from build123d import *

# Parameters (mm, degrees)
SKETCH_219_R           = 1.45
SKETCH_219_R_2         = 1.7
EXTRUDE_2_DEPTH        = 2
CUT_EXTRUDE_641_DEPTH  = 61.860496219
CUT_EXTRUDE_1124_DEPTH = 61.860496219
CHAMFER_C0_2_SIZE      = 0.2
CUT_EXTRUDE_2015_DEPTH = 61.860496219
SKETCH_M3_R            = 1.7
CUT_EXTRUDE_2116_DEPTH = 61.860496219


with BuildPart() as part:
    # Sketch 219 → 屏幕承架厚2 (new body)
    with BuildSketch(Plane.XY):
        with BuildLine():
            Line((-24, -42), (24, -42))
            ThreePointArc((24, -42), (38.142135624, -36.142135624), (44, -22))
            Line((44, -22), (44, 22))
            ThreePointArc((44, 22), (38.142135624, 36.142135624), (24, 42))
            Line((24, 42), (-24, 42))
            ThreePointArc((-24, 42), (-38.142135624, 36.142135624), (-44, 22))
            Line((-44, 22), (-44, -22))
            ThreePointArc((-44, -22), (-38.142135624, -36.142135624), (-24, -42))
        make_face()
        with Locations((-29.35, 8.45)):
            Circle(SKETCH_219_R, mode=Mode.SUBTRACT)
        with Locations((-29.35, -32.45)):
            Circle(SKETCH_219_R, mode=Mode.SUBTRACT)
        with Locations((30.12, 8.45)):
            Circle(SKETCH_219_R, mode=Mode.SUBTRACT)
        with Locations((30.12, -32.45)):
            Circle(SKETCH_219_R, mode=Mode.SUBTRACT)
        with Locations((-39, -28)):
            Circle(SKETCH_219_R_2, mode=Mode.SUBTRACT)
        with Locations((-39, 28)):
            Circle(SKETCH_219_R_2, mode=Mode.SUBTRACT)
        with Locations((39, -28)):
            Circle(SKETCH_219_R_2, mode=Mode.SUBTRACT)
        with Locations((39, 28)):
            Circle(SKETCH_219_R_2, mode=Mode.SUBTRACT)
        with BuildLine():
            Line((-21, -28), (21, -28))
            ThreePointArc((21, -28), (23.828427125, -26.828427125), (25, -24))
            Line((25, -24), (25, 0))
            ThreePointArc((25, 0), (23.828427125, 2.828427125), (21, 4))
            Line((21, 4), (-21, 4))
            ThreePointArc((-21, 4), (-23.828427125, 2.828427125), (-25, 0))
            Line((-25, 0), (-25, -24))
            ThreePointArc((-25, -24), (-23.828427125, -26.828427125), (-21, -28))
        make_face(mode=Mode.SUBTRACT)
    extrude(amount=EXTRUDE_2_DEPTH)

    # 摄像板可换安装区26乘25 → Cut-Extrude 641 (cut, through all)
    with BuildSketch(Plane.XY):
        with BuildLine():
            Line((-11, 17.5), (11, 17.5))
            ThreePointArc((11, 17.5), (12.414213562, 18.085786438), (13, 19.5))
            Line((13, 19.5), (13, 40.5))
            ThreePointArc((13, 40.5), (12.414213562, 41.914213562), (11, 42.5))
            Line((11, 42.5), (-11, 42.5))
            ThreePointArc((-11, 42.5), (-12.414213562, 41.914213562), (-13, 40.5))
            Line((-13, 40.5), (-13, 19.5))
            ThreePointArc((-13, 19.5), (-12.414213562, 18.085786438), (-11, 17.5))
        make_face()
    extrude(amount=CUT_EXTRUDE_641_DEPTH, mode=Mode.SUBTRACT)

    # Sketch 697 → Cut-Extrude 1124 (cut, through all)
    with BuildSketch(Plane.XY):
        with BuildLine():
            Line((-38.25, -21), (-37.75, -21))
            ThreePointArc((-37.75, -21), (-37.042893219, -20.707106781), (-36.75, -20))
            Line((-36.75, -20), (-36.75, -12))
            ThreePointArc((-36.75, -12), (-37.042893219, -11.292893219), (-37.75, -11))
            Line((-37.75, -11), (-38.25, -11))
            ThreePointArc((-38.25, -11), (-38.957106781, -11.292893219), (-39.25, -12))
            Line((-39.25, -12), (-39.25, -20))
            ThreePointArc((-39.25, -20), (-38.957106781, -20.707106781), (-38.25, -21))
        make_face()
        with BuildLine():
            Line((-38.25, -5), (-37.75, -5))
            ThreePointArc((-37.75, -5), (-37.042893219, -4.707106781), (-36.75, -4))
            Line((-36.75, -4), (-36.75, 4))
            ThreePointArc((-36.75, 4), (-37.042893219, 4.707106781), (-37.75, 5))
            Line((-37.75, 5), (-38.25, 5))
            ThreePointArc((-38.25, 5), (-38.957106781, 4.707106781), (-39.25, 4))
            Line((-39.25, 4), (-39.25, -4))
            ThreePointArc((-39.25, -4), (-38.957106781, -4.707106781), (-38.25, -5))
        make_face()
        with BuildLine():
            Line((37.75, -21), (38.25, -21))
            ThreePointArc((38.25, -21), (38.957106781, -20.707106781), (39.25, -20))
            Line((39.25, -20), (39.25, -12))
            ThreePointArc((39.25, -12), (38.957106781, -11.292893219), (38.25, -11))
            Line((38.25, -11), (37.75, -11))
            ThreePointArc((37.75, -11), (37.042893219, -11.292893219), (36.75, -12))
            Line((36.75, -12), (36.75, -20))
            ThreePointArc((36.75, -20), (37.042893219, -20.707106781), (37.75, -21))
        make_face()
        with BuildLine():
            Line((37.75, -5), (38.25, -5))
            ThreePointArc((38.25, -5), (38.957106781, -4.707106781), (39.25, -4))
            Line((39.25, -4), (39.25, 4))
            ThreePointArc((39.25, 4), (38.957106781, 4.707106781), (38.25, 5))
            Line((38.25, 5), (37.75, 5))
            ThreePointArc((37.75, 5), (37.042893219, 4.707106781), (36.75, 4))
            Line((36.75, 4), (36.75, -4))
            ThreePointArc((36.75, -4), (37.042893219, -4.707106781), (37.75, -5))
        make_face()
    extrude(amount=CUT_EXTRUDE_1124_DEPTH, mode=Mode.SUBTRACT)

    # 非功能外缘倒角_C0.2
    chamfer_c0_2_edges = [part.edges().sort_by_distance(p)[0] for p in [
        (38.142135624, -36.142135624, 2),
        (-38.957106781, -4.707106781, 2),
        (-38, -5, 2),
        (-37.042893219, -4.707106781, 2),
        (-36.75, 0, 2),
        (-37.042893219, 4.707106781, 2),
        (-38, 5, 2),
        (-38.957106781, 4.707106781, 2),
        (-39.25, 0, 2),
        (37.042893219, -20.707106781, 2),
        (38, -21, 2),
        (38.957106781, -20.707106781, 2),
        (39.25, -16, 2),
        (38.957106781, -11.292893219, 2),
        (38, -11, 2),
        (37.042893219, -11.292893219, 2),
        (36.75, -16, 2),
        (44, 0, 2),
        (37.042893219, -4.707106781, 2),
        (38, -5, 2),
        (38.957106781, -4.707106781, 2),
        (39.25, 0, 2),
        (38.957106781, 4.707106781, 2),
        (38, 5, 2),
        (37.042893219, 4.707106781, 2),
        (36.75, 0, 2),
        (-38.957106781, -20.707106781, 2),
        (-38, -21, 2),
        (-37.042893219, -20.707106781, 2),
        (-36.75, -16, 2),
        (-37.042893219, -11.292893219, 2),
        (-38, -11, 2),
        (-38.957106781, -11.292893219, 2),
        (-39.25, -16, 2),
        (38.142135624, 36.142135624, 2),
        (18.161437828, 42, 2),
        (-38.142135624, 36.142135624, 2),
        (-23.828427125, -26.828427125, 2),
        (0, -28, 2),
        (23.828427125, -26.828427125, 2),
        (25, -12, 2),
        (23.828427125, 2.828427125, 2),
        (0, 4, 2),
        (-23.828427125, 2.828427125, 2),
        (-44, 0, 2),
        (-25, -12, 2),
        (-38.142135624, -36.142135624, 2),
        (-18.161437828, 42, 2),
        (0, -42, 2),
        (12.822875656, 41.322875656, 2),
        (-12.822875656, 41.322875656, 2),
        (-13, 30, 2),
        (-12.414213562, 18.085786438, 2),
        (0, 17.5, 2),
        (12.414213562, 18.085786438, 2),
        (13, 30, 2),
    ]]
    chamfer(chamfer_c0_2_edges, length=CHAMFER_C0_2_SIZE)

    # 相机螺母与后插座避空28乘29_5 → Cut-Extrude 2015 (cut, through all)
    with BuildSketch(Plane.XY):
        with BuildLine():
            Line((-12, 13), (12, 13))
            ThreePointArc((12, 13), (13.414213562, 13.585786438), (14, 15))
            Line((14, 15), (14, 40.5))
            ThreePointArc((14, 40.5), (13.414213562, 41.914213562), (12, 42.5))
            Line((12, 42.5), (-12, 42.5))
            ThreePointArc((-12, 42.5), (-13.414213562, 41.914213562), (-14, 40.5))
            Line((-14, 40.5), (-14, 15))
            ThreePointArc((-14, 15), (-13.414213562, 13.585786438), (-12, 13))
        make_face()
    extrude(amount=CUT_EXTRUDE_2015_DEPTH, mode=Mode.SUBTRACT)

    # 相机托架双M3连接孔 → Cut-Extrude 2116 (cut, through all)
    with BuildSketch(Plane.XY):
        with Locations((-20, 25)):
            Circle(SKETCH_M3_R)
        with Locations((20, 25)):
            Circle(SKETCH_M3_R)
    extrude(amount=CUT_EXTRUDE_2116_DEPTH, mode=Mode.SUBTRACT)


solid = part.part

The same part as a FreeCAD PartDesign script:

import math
import FreeCAD as App
import Part
import Sketcher

V = App.Vector


def edges_at(feature, points):
    """Names of the edges that pass closest to the given points."""
    edges = feature.Shape.Edges
    near = lambda p: min(range(len(edges)), key=lambda i: edges[i].distToShape(Part.Vertex(*p))[0])
    return sorted({f"Edge{near(p) + 1}" for p in points})

doc = App.newDocument("Part")
body = doc.addObject("PartDesign::Body", "Body")

sketch1 = doc.addObject("Sketcher::SketchObject", "Sketch")
body.addObject(sketch1)
sketch1.AttachmentSupport = (doc.XY_Plane, [""])
sketch1.MapMode = "FlatFace"
sketch1.addGeometry([
    Part.LineSegment(V(-24, -42, 0), V(24, -42, 0)),
    Part.ArcOfCircle(Part.Circle(V(24, -22, 0), V(0, 0, 1), 20), math.radians(-90), math.radians(0)),
    Part.LineSegment(V(44, -22, 0), V(44, 22, 0)),
    Part.ArcOfCircle(Part.Circle(V(24, 22, 0), V(0, 0, 1), 20), math.radians(0), math.radians(90)),
    Part.LineSegment(V(24, 42, 0), V(-24, 42, 0)),
    Part.ArcOfCircle(Part.Circle(V(-24, 22, 0), V(0, 0, 1), 20), math.radians(90), math.radians(180)),
    Part.LineSegment(V(-44, 22, 0), V(-44, -22, 0)),
    Part.ArcOfCircle(Part.Circle(V(-24, -22, 0), V(0, 0, 1), 20), math.radians(180), math.radians(270)),
    Part.Circle(V(-39, -28, 0), V(0, 0, 1), 1.7),
    Part.Circle(V(-29.35, -32.45, 0), V(0, 0, 1), 1.45),
    Part.Circle(V(30.12, -32.45, 0), V(0, 0, 1), 1.45),
    Part.Circle(V(39, -28, 0), V(0, 0, 1), 1.7),
    Part.LineSegment(V(21, -28, 0), V(-21, -28, 0)),
    Part.ArcOfCircle(Part.Circle(V(-21, -24, 0), V(0, 0, 1), 4), math.radians(180), math.radians(270)),
    Part.LineSegment(V(-25, -24, 0), V(-25, 0, 0)),
    Part.ArcOfCircle(Part.Circle(V(-21, 0, 0), V(0, 0, 1), 4), math.radians(90), math.radians(180)),
    Part.LineSegment(V(-21, 4, 0), V(21, 4, 0)),
    Part.ArcOfCircle(Part.Circle(V(21, 0, 0), V(0, 0, 1), 4), math.radians(0), math.radians(90)),
    Part.LineSegment(V(25, 0, 0), V(25, -24, 0)),
    Part.ArcOfCircle(Part.Circle(V(21, -24, 0), V(0, 0, 1), 4), math.radians(-90), math.radians(0)),
    Part.Circle(V(-29.35, 8.45, 0), V(0, 0, 1), 1.45),
    Part.Circle(V(-39, 28, 0), V(0, 0, 1), 1.7),
    Part.Circle(V(30.12, 8.45, 0), V(0, 0, 1), 1.45),
    Part.Circle(V(39, 28, 0), V(0, 0, 1), 1.7),
], False)
sketch1.addConstraint([
    Sketcher.Constraint("Tangent", 0, 2, 1, 1),
    Sketcher.Constraint("Tangent", 1, 2, 2, 1),
    Sketcher.Constraint("Tangent", 2, 2, 3, 1),
    Sketcher.Constraint("Tangent", 3, 2, 4, 1),
    Sketcher.Constraint("Tangent", 4, 2, 5, 1),
    Sketcher.Constraint("Tangent", 5, 2, 6, 1),
    Sketcher.Constraint("Tangent", 6, 2, 7, 1),
    Sketcher.Constraint("Tangent", 7, 2, 0, 1),
    Sketcher.Constraint("Tangent", 12, 2, 13, 2),
    Sketcher.Constraint("Tangent", 13, 1, 14, 1),
    Sketcher.Constraint("Tangent", 14, 2, 15, 2),
    Sketcher.Constraint("Tangent", 15, 1, 16, 1),
    Sketcher.Constraint("Tangent", 16, 2, 17, 2),
    Sketcher.Constraint("Tangent", 17, 1, 18, 1),
    Sketcher.Constraint("Tangent", 18, 2, 19, 2),
    Sketcher.Constraint("Tangent", 19, 1, 12, 1),
    Sketcher.Constraint("Horizontal", 0),
    Sketcher.Constraint("Vertical", 2),
    Sketcher.Constraint("Horizontal", 4),
    Sketcher.Constraint("Vertical", 6),
    Sketcher.Constraint("Horizontal", 12),
    Sketcher.Constraint("Vertical", 14),
    Sketcher.Constraint("Horizontal", 16),
    Sketcher.Constraint("Vertical", 18),
    Sketcher.Constraint("Equal", 1, 3),
    Sketcher.Constraint("Equal", 3, 5),
    Sketcher.Constraint("Equal", 5, 7),
    Sketcher.Constraint("Equal", 9, 10),
    Sketcher.Constraint("Equal", 8, 11),
    Sketcher.Constraint("Equal", 13, 15),
    Sketcher.Constraint("Equal", 15, 17),
    Sketcher.Constraint("Equal", 17, 19),
    Sketcher.Constraint("Equal", 10, 20),
    Sketcher.Constraint("Equal", 11, 21),
    Sketcher.Constraint("Equal", 20, 22),
    Sketcher.Constraint("Equal", 21, 23),
    Sketcher.Constraint("Symmetric", 1, 3, 5, 3, -1, 1),
    Sketcher.Constraint("Symmetric", 15, 3, 17, 3, -1, 1),
    Sketcher.Constraint("Symmetric", 11, 3, 21, 3, -1, 1),
    Sketcher.Constraint("Symmetric", 8, 3, 23, 3, -1, 1),
    Sketcher.Constraint("Symmetric", 8, 3, 11, 3, -2),
    Sketcher.Constraint("Horizontal", 9, 3, 10, 3),
    Sketcher.Constraint("Horizontal", 20, 3, 22, 3),
    Sketcher.Constraint("Horizontal", 11, 3, 12, 2),
    Sketcher.Constraint("Vertical", 9, 3, 20, 3),
    Sketcher.Constraint("Vertical", 10, 3, 22, 3),
    Sketcher.Constraint("Radius", 1, 20.0),
    Sketcher.Constraint("Radius", 13, 4.0),
    Sketcher.Constraint("Diameter", 8, 3.4),
    Sketcher.Constraint("Diameter", 9, 2.9),
    Sketcher.Constraint("DistanceX", 0, 1, 0, 2, 48.0),
    Sketcher.Constraint("DistanceX", 12, 2, 12, 1, 42.0),
    Sketcher.Constraint("DistanceY", 2, 1, 2, 2, 44.0),
    Sketcher.Constraint("DistanceY", 14, 1, 14, 2, 24.0),
    Sketcher.Constraint("DistanceX", 8, 3, -1, 1, 39.0),
    Sketcher.Constraint("DistanceX", 9, 3, -1, 1, 29.35),
    Sketcher.Constraint("DistanceY", 9, 3, -1, 1, 32.45),
    Sketcher.Constraint("DistanceX", -1, 1, 10, 3, 30.12),
    Sketcher.Constraint("DistanceY", -1, 1, 20, 3, 8.45),
])
pad1 = doc.addObject("PartDesign::Pad", "Pad")
body.addObject(pad1)
pad1.Profile = sketch1
pad1.Length = 2

sketch2 = doc.addObject("Sketcher::SketchObject", "Sketch001")
body.addObject(sketch2)
sketch2.AttachmentSupport = (doc.XY_Plane, [""])
sketch2.MapMode = "FlatFace"
sketch2.addGeometry([
    Part.LineSegment(V(-11, 17.5, 0), V(11, 17.5, 0)),
    Part.ArcOfCircle(Part.Circle(V(11, 19.5, 0), V(0, 0, 1), 2), math.radians(-90), math.radians(0)),
    Part.LineSegment(V(13, 19.5, 0), V(13, 40.5, 0)),
    Part.ArcOfCircle(Part.Circle(V(11, 40.5, 0), V(0, 0, 1), 2), math.radians(0), math.radians(90)),
    Part.LineSegment(V(11, 42.5, 0), V(-11, 42.5, 0)),
    Part.ArcOfCircle(Part.Circle(V(-11, 40.5, 0), V(0, 0, 1), 2), math.radians(90), math.radians(180)),
    Part.LineSegment(V(-13, 40.5, 0), V(-13, 19.5, 0)),
    Part.ArcOfCircle(Part.Circle(V(-11, 19.5, 0), V(0, 0, 1), 2), math.radians(-180), math.radians(-90)),
], False)
sketch2.addConstraint([
    Sketcher.Constraint("Tangent", 0, 2, 1, 1),
    Sketcher.Constraint("Tangent", 1, 2, 2, 1),
    Sketcher.Constraint("Tangent", 2, 2, 3, 1),
    Sketcher.Constraint("Tangent", 3, 2, 4, 1),
    Sketcher.Constraint("Tangent", 4, 2, 5, 1),
    Sketcher.Constraint("Tangent", 5, 2, 6, 1),
    Sketcher.Constraint("Tangent", 6, 2, 7, 1),
    Sketcher.Constraint("Tangent", 7, 2, 0, 1),
    Sketcher.Constraint("Horizontal", 0),
    Sketcher.Constraint("Vertical", 2),
    Sketcher.Constraint("Horizontal", 4),
    Sketcher.Constraint("Vertical", 6),
    Sketcher.Constraint("Equal", 1, 3),
    Sketcher.Constraint("Equal", 3, 5),
    Sketcher.Constraint("Equal", 5, 7),
    Sketcher.Constraint("Radius", 1, 2.0),
    Sketcher.Constraint("DistanceX", 0, 1, 0, 2, 22.0),
    Sketcher.Constraint("DistanceY", 2, 1, 2, 2, 21.0),
    Sketcher.Constraint("DistanceX", -1, 1, 1, 3, 11.0),
    Sketcher.Constraint("DistanceY", -1, 1, 1, 3, 19.5),
])
pocket1 = doc.addObject("PartDesign::Pocket", "Pocket")
body.addObject(pocket1)
pocket1.Profile = sketch2
pocket1.Type = "ThroughAll"
pocket1.Reversed = True

sketch3 = doc.addObject("Sketcher::SketchObject", "Sketch002")
body.addObject(sketch3)
sketch3.AttachmentSupport = (doc.XY_Plane, [""])
sketch3.MapMode = "FlatFace"
sketch3.addGeometry([
    Part.LineSegment(V(-38.25, -21, 0), V(-37.75, -21, 0)),
    Part.ArcOfCircle(Part.Circle(V(-37.75, -20, 0), V(0, 0, 1), 1), math.radians(-90), math.radians(0)),
    Part.LineSegment(V(-36.75, -20, 0), V(-36.75, -12, 0)),
    Part.ArcOfCircle(Part.Circle(V(-37.75, -12, 0), V(0, 0, 1), 1), math.radians(0), math.radians(90)),
    Part.LineSegment(V(-37.75, -11, 0), V(-38.25, -11, 0)),
    Part.ArcOfCircle(Part.Circle(V(-38.25, -12, 0), V(0, 0, 1), 1), math.radians(90), math.radians(180)),
    Part.LineSegment(V(-39.25, -12, 0), V(-39.25, -20, 0)),
    Part.ArcOfCircle(Part.Circle(V(-38.25, -20, 0), V(0, 0, 1), 1), math.radians(-180), math.radians(-90)),
    Part.LineSegment(V(-38.25, -5, 0), V(-37.75, -5, 0)),
    Part.ArcOfCircle(Part.Circle(V(-37.75, -4, 0), V(0, 0, 1), 1), math.radians(-90), math.radians(0)),
    Part.LineSegment(V(-36.75, -4, 0), V(-36.75, 4, 0)),
    Part.ArcOfCircle(Part.Circle(V(-37.75, 4, 0), V(0, 0, 1), 1), math.radians(0), math.radians(90)),
    Part.LineSegment(V(-37.75, 5, 0), V(-38.25, 5, 0)),
    Part.ArcOfCircle(Part.Circle(V(-38.25, 4, 0), V(0, 0, 1), 1), math.radians(90), math.radians(180)),
    Part.LineSegment(V(-39.25, 4, 0), V(-39.25, -4, 0)),
    Part.ArcOfCircle(Part.Circle(V(-38.25, -4, 0), V(0, 0, 1), 1), math.radians(-180), math.radians(-90)),
    Part.LineSegment(V(37.75, -21, 0), V(38.25, -21, 0)),
    Part.ArcOfCircle(Part.Circle(V(38.25, -20, 0), V(0, 0, 1), 1), math.radians(-90), math.radians(0)),
    Part.LineSegment(V(39.25, -20, 0), V(39.25, -12, 0)),
    Part.ArcOfCircle(Part.Circle(V(38.25, -12, 0), V(0, 0, 1), 1), math.radians(0), math.radians(90)),
    Part.LineSegment(V(38.25, -11, 0), V(37.75, -11, 0)),
    Part.ArcOfCircle(Part.Circle(V(37.75, -12, 0), V(0, 0, 1), 1), math.radians(90), math.radians(180)),
    Part.LineSegment(V(36.75, -12, 0), V(36.75, -20, 0)),
    Part.ArcOfCircle(Part.Circle(V(37.75, -20, 0), V(0, 0, 1), 1), math.radians(-180), math.radians(-90)),
    Part.LineSegment(V(37.75, -5, 0), V(38.25, -5, 0)),
    Part.ArcOfCircle(Part.Circle(V(38.25, -4, 0), V(0, 0, 1), 1), math.radians(-90), math.radians(0)),
    Part.LineSegment(V(39.25, -4, 0), V(39.25, 4, 0)),
    Part.ArcOfCircle(Part.Circle(V(38.25, 4, 0), V(0, 0, 1), 1), math.radians(0), math.radians(90)),
    Part.LineSegment(V(38.25, 5, 0), V(37.75, 5, 0)),
    Part.ArcOfCircle(Part.Circle(V(37.75, 4, 0), V(0, 0, 1), 1), math.radians(90), math.radians(180)),
    Part.LineSegment(V(36.75, 4, 0), V(36.75, -4, 0)),
    Part.ArcOfCircle(Part.Circle(V(37.75, -4, 0), V(0, 0, 1), 1), math.radians(-180), math.radians(-90)),
], False)
sketch3.addConstraint([
    Sketcher.Constraint("Tangent", 0, 2, 1, 1),
    Sketcher.Constraint("Tangent", 1, 2, 2, 1),
    Sketcher.Constraint("Tangent", 2, 2, 3, 1),
    Sketcher.Constraint("Tangent", 3, 2, 4, 1),
    Sketcher.Constraint("Tangent", 4, 2, 5, 1),
    Sketcher.Constraint("Tangent", 5, 2, 6, 1),
    Sketcher.Constraint("Tangent", 6, 2, 7, 1),
    Sketcher.Constraint("Tangent", 7, 2, 0, 1),
    Sketcher.Constraint("Tangent", 8, 2, 9, 1),
    Sketcher.Constraint("Tangent", 9, 2, 10, 1),
    Sketcher.Constraint("Tangent", 10, 2, 11, 1),
    Sketcher.Constraint("Tangent", 11, 2, 12, 1),
    Sketcher.Constraint("Tangent", 12, 2, 13, 1),
    Sketcher.Constraint("Tangent", 13, 2, 14, 1),
    Sketcher.Constraint("Tangent", 14, 2, 15, 1),
    Sketcher.Constraint("Tangent", 15, 2, 8, 1),
    Sketcher.Constraint("Tangent", 16, 2, 17, 1),
    Sketcher.Constraint("Tangent", 17, 2, 18, 1),
    Sketcher.Constraint("Tangent", 18, 2, 19, 1),
    Sketcher.Constraint("Tangent", 19, 2, 20, 1),
    Sketcher.Constraint("Tangent", 20, 2, 21, 1),
    Sketcher.Constraint("Tangent", 21, 2, 22, 1),
    Sketcher.Constraint("Tangent", 22, 2, 23, 1),
    Sketcher.Constraint("Tangent", 23, 2, 16, 1),
    Sketcher.Constraint("Tangent", 24, 2, 25, 1),
    Sketcher.Constraint("Tangent", 25, 2, 26, 1),
    Sketcher.Constraint("Tangent", 26, 2, 27, 1),
    Sketcher.Constraint("Tangent", 27, 2, 28, 1),
    Sketcher.Constraint("Tangent", 28, 2, 29, 1),
    Sketcher.Constraint("Tangent", 29, 2, 30, 1),
    Sketcher.Constraint("Tangent", 30, 2, 31, 1),
    Sketcher.Constraint("Tangent", 31, 2, 24, 1),
    Sketcher.Constraint("Horizontal", 0),
    Sketcher.Constraint("Vertical", 2),
    Sketcher.Constraint("Horizontal", 4),
    Sketcher.Constraint("Vertical", 6),
    Sketcher.Constraint("Horizontal", 8),
    Sketcher.Constraint("Vertical", 10),
    Sketcher.Constraint("Horizontal", 12),
    Sketcher.Constraint("Vertical", 14),
    Sketcher.Constraint("Horizontal", 16),
    Sketcher.Constraint("Vertical", 18),
    Sketcher.Constraint("Horizontal", 20),
    Sketcher.Constraint("Vertical", 22),
    Sketcher.Constraint("Horizontal", 24),
    Sketcher.Constraint("Vertical", 26),
    Sketcher.Constraint("Horizontal", 28),
    Sketcher.Constraint("Vertical", 30),
    Sketcher.Constraint("Equal", 1, 3),
    Sketcher.Constraint("Equal", 3, 5),
    Sketcher.Constraint("Equal", 5, 7),
    Sketcher.Constraint("Equal", 7, 9),
    Sketcher.Constraint("Equal", 9, 11),
    Sketcher.Constraint("Equal", 11, 13),
    Sketcher.Constraint("Equal", 13, 15),
    Sketcher.Constraint("Equal", 15, 17),
    Sketcher.Constraint("Equal", 17, 19),
    Sketcher.Constraint("Equal", 19, 21),
    Sketcher.Constraint("Equal", 21, 23),
    Sketcher.Constraint("Equal", 23, 25),
    Sketcher.Constraint("Equal", 25, 27),
    Sketcher.Constraint("Equal", 27, 29),
    Sketcher.Constraint("Equal", 29, 31),
    Sketcher.Constraint("Symmetric", 13, 3, 25, 3, -1, 1),
    Sketcher.Constraint("Symmetric", 9, 3, 29, 3, -1, 1),
    Sketcher.Constraint("Symmetric", 7, 3, 17, 3, -2),
    Sketcher.Constraint("Symmetric", 3, 3, 21, 3, -2),
    Sketcher.Constraint("Horizontal", 15, 3, 25, 3),
    Sketcher.Constraint("Vertical", 3, 3, 9, 3),
    Sketcher.Constraint("Vertical", 7, 3, 13, 3),
    Sketcher.Constraint("Equal", 6, 10),
    Sketcher.Constraint("Radius", 1, 1.0),
    Sketcher.Constraint("DistanceY", 2, 1, 2, 2, 8.0),
    Sketcher.Constraint("DistanceX", 0, 1, 0, 2, 0.5),
    Sketcher.Constraint("DistanceY", 1, 3, -1, 1, 20.0),
    Sketcher.Constraint("DistanceX", 1, 3, 17, 3, 76.0),
])
pocket2 = doc.addObject("PartDesign::Pocket", "Pocket001")
body.addObject(pocket2)
pocket2.Profile = sketch3
pocket2.Type = "ThroughAll"
pocket2.Reversed = True
doc.recompute()

chamfer = doc.addObject("PartDesign::Chamfer", "Chamfer")
body.addObject(chamfer)
chamfer.Base = (pocket2, edges_at(pocket2, [
    (38.142, -36.142, 2),
    (-38.957, -4.707, 2),
    (-38, -5, 2),
    (-37.043, -4.707, 2),
    (-36.75, 0, 2),
    (-37.043, 4.707, 2),
    (-38, 5, 2),
    (-38.957, 4.707, 2),
    (-39.25, 0, 2),
    (37.043, -20.707, 2),
    (38, -21, 2),
    (38.957, -20.707, 2),
    (39.25, -16, 2),
    (38.957, -11.293, 2),
    (38, -11, 2),
    (37.043, -11.293, 2),
    (36.75, -16, 2),
    (44, 0, 2),
    (37.043, -4.707, 2),
    (38, -5, 2),
    (38.957, -4.707, 2),
    (39.25, 0, 2),
    (38.957, 4.707, 2),
    (38, 5, 2),
    (37.043, 4.707, 2),
    (36.75, 0, 2),
    (-38.957, -20.707, 2),
    (-38, -21, 2),
    (-37.043, -20.707, 2),
    (-36.75, -16, 2),
    (-37.043, -11.293, 2),
    (-38, -11, 2),
    (-38.957, -11.293, 2),
    (-39.25, -16, 2),
    (38.142, 36.142, 2),
    (18.161, 42, 2),
    (-38.142, 36.142, 2),
    (-23.828, -26.828, 2),
    (0, -28, 2),
    (23.828, -26.828, 2),
    (25, -12, 2),
    (23.828, 2.828, 2),
    (0, 4, 2),
    (-23.828, 2.828, 2),
    (-44, 0, 2),
    (-25, -12, 2),
    (-38.142, -36.142, 2),
    (-18.161, 42, 2),
    (0, -42, 2),
    (12.823, 41.323, 2),
    (-12.823, 41.323, 2),
    (-13, 30, 2),
    (-12.414, 18.086, 2),
    (0, 17.5, 2),
    (12.414, 18.086, 2),
    (13, 30, 2),
]))
chamfer.Size = 0.2

sketch4 = doc.addObject("Sketcher::SketchObject", "Sketch003")
body.addObject(sketch4)
sketch4.AttachmentSupport = (doc.XY_Plane, [""])
sketch4.MapMode = "FlatFace"
sketch4.addGeometry([
    Part.LineSegment(V(-12, 13, 0), V(12, 13, 0)),
    Part.ArcOfCircle(Part.Circle(V(12, 15, 0), V(0, 0, 1), 2), math.radians(-90), math.radians(0)),
    Part.LineSegment(V(14, 15, 0), V(14, 40.5, 0)),
    Part.ArcOfCircle(Part.Circle(V(12, 40.5, 0), V(0, 0, 1), 2), math.radians(0), math.radians(90)),
    Part.LineSegment(V(12, 42.5, 0), V(-12, 42.5, 0)),
    Part.ArcOfCircle(Part.Circle(V(-12, 40.5, 0), V(0, 0, 1), 2), math.radians(90), math.radians(180)),
    Part.LineSegment(V(-14, 40.5, 0), V(-14, 15, 0)),
    Part.ArcOfCircle(Part.Circle(V(-12, 15, 0), V(0, 0, 1), 2), math.radians(-180), math.radians(-90)),
], False)
sketch4.addConstraint([
    Sketcher.Constraint("Tangent", 0, 2, 1, 1),
    Sketcher.Constraint("Tangent", 1, 2, 2, 1),
    Sketcher.Constraint("Tangent", 2, 2, 3, 1),
    Sketcher.Constraint("Tangent", 3, 2, 4, 1),
    Sketcher.Constraint("Tangent", 4, 2, 5, 1),
    Sketcher.Constraint("Tangent", 5, 2, 6, 1),
    Sketcher.Constraint("Tangent", 6, 2, 7, 1),
    Sketcher.Constraint("Tangent", 7, 2, 0, 1),
    Sketcher.Constraint("Horizontal", 0),
    Sketcher.Constraint("Vertical", 2),
    Sketcher.Constraint("Horizontal", 4),
    Sketcher.Constraint("Vertical", 6),
    Sketcher.Constraint("Equal", 1, 3),
    Sketcher.Constraint("Equal", 3, 5),
    Sketcher.Constraint("Equal", 5, 7),
    Sketcher.Constraint("Radius", 1, 2.0),
    Sketcher.Constraint("DistanceX", 0, 1, 0, 2, 24.0),
    Sketcher.Constraint("DistanceY", 2, 1, 2, 2, 25.5),
    Sketcher.Constraint("DistanceX", -1, 1, 1, 3, 12.0),
    Sketcher.Constraint("DistanceY", -1, 1, 1, 3, 15.0),
])
pocket3 = doc.addObject("PartDesign::Pocket", "Pocket002")
body.addObject(pocket3)
pocket3.Profile = sketch4
pocket3.Type = "ThroughAll"
pocket3.Reversed = True

sketch5 = doc.addObject("Sketcher::SketchObject", "Sketch004")
body.addObject(sketch5)
sketch5.AttachmentSupport = (doc.XY_Plane, [""])
sketch5.MapMode = "FlatFace"
sketch5.addGeometry([
    Part.Circle(V(-20, 25, 0), V(0, 0, 1), 1.7),
    Part.Circle(V(20, 25, 0), V(0, 0, 1), 1.7),
], False)
sketch5.addConstraint([
    Sketcher.Constraint("Equal", 0, 1),
    Sketcher.Constraint("Symmetric", 0, 3, 1, 3, -2),
    Sketcher.Constraint("Diameter", 0, 3.4),
    Sketcher.Constraint("DistanceX", 0, 3, -1, 1, 20.0),
    Sketcher.Constraint("DistanceY", -1, 1, 0, 3, 25.0),
])
pocket4 = doc.addObject("PartDesign::Pocket", "Pocket003")
body.addObject(pocket4)
pocket4.Profile = sketch5
pocket4.Type = "ThroughAll"
pocket4.Reversed = True

doc.recompute()
